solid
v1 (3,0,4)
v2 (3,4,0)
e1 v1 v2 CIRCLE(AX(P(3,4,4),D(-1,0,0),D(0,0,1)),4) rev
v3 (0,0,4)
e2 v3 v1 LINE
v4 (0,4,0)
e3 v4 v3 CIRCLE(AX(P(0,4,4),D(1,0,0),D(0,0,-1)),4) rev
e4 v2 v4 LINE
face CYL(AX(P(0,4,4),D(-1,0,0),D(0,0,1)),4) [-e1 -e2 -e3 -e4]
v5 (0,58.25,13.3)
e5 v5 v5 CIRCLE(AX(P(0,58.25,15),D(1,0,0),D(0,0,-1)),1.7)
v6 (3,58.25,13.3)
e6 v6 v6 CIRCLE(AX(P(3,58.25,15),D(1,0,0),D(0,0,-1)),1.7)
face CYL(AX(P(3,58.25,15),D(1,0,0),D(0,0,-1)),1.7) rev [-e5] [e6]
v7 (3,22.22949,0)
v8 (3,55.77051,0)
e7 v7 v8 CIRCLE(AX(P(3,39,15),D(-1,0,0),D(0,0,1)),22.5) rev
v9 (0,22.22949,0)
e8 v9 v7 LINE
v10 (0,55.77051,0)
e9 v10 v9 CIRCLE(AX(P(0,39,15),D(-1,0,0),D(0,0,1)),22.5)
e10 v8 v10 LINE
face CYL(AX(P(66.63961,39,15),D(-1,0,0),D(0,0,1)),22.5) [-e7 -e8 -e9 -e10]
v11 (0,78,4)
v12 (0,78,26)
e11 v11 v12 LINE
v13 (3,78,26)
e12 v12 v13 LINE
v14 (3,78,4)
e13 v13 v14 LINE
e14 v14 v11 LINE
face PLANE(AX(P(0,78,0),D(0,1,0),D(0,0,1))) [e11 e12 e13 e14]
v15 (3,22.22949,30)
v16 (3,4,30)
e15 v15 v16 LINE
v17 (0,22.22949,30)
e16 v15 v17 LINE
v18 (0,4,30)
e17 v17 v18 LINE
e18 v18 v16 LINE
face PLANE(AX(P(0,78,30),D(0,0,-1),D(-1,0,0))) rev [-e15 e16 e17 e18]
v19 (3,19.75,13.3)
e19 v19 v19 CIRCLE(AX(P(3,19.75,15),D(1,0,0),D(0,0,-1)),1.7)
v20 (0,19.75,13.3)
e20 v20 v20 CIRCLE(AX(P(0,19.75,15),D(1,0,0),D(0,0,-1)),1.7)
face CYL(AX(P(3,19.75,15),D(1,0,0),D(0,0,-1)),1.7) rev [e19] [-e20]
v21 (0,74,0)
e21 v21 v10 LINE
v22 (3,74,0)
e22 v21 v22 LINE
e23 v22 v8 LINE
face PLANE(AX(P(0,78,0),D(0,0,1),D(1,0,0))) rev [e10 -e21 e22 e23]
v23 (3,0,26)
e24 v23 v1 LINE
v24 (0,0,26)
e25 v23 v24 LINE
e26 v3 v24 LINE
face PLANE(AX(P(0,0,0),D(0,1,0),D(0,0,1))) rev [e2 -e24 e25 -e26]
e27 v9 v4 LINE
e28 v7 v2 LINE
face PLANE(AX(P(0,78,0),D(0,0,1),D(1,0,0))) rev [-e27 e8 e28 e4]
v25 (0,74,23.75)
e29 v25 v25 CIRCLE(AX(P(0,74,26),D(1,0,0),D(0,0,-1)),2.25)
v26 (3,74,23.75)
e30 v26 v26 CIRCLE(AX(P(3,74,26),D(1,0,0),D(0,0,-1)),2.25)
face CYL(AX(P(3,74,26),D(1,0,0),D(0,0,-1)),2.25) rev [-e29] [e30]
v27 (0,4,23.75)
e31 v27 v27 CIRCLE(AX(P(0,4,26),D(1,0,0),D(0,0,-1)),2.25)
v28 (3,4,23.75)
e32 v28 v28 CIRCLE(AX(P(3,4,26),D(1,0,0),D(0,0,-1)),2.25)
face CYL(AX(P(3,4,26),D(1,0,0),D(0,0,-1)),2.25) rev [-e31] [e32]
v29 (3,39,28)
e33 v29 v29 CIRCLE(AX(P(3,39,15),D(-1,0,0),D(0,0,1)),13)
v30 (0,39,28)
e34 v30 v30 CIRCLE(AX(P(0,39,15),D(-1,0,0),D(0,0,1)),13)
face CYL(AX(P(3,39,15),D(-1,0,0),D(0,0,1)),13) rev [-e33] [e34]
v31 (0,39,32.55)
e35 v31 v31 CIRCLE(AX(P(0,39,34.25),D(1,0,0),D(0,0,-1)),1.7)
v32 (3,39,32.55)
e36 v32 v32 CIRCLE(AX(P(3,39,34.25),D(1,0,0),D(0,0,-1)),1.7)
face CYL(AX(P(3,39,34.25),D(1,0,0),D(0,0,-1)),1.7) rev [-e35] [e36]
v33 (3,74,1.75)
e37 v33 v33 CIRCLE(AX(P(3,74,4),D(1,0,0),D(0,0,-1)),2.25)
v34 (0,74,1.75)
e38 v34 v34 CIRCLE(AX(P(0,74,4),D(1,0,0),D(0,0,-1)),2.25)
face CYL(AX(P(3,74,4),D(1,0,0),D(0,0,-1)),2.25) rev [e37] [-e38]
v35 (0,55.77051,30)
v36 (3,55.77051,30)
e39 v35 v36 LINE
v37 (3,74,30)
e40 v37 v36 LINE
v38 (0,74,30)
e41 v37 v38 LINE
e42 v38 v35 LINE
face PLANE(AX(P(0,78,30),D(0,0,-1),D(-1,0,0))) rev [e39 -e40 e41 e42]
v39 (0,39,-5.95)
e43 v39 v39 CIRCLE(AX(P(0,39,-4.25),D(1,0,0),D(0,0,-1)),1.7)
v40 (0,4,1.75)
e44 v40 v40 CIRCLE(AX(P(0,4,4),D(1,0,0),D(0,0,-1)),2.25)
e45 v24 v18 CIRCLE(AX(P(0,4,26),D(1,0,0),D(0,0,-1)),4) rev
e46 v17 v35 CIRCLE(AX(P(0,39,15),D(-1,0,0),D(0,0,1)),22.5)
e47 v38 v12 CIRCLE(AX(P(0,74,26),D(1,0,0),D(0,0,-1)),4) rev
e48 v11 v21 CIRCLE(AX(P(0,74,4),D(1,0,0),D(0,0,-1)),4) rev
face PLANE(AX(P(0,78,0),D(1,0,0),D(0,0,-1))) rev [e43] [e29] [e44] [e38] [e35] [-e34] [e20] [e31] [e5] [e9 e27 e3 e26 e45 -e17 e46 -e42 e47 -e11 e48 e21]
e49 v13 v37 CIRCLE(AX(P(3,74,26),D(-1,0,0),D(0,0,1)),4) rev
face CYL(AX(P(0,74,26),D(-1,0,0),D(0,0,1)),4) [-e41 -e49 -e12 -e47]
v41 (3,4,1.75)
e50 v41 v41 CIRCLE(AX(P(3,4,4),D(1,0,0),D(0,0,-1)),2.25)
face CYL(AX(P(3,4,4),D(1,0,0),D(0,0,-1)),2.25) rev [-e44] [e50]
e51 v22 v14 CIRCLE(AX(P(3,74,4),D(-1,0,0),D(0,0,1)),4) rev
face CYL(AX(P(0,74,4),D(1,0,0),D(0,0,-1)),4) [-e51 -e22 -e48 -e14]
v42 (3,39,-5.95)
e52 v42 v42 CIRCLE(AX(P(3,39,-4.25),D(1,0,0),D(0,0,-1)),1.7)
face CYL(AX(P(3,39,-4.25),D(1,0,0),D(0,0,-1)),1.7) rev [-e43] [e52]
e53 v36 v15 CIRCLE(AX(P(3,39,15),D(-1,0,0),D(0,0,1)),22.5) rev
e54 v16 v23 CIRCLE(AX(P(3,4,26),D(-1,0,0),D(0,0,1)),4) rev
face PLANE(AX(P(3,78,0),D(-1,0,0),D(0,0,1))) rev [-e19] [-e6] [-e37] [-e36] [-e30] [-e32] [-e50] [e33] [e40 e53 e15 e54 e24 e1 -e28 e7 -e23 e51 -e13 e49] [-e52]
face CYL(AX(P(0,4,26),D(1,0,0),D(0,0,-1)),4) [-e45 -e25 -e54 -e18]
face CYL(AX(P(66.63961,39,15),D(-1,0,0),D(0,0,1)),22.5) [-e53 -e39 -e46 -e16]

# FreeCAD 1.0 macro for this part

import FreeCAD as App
import Part
import Sketcher

V = App.Vector


def edges_at(feature, points):
    """Names of the edges that pass closest to the given points."""
    edges = feature.Shape.Edges
    near = lambda p: min(range(len(edges)), key=lambda i: edges[i].distToShape(Part.Vertex(*p))[0])
    return sorted({f"Edge{near(p) + 1}" for p in points})

doc = App.newDocument("Part")
params = doc.addObject("Spreadsheet::Sheet", "Params")
for row, (alias, value) in enumerate([
    ("sketch1_width", "3 mm"),
    ("sketch1_height", "30 mm"),
    ("pad1_length", "78 mm"),
    ("sketch2_diameter", "45 mm"),
    ("pad2_length", "3 mm"),
    ("sketch3_diameter", "26 mm"),
    ("sketch4_diameter", "3.4 mm"),
    ("hole_diameter", "3.4 mm"),
    ("sketch5_diameter", "4.5 mm"),
    ("hole2_diameter", "4.5 mm"),
    ("fillet_radius", "4 mm"),
], start=1):
    params.set(f"A{row}", alias)
    params.set(f"B{row}", "=" + value)
    params.setAlias(f"B{row}", alias)

body = doc.addObject("PartDesign::Body", "Body")

sketch1 = doc.addObject("Sketcher::SketchObject", "Sketch")
body.addObject(sketch1)
sketch1.AttachmentSupport = (doc.XZ_Plane, [""])
sketch1.MapMode = "FlatFace"
sketch1.addGeometry([
    Part.LineSegment(V(0, 0, 0), V(0, 30, 0)),
    Part.LineSegment(V(0, 30, 0), V(3, 30, 0)),
    Part.LineSegment(V(3, 30, 0), V(3, 0, 0)),
    Part.LineSegment(V(3, 0, 0), V(0, 0, 0)),
], False)
sketch1.addConstraint([
    Sketcher.Constraint("Coincident", 0, 2, 1, 1),
    Sketcher.Constraint("Coincident", 1, 2, 2, 1),
    Sketcher.Constraint("Coincident", 2, 2, 3, 1),
    Sketcher.Constraint("Coincident", 3, 2, 0, 1),
    Sketcher.Constraint("Vertical", 0),
    Sketcher.Constraint("Horizontal", 1),
    Sketcher.Constraint("Vertical", 2),
    Sketcher.Constraint("Horizontal", 3),
    Sketcher.Constraint("Coincident", 3, 2, -1, 1),
    Sketcher.Constraint("DistanceX", 1, 1, 1, 2, 3.0),
    Sketcher.Constraint("DistanceY", 0, 1, 0, 2, 30.0),
])
sketch1.setExpression("Constraints[9]", "Params.sketch1_width")
sketch1.setExpression("Constraints[10]", "Params.sketch1_height")
pad1 = doc.addObject("PartDesign::Pad", "Pad")
body.addObject(pad1)
pad1.Profile = sketch1
pad1.setExpression("Length", "Params.pad1_length")
pad1.Reversed = True

sketch2 = doc.addObject("Sketcher::SketchObject", "Sketch001")
body.addObject(sketch2)
sketch2.AttachmentSupport = (doc.YZ_Plane, [""])
sketch2.MapMode = "FlatFace"
sketch2.addGeometry(Part.Circle(V(39, 15, 0), V(0, 0, 1), 22), False)
sketch2.addConstraint([
    Sketcher.Constraint("Diameter", 0, 45.0),
    Sketcher.Constraint("DistanceX", -1, 1, 0, 3, 39.0),
    Sketcher.Constraint("DistanceY", -1, 1, 0, 3, 15.0),
])
sketch2.setExpression("Constraints[0]", "Params.sketch2_diameter")
pad2 = doc.addObject("PartDesign::Pad", "Pad001")
body.addObject(pad2)
pad2.Profile = sketch2
pad2.setExpression("Length", "Params.pad2_length")

sketch3 = doc.addObject("Sketcher::SketchObject", "Sketch002")
body.addObject(sketch3)
sketch3.AttachmentSupport = (doc.YZ_Plane, [""])
sketch3.MapMode = "FlatFace"
sketch3.addGeometry(Part.Circle(V(39, 15, 0), V(0, 0, 1), 13), False)
sketch3.addConstraint([
    Sketcher.Constraint("Diameter", 0, 26.0),
    Sketcher.Constraint("DistanceX", -1, 1, 0, 3, 39.0),
    Sketcher.Constraint("DistanceY", -1, 1, 0, 3, 15.0),
])
sketch3.setExpression("Constraints[0]", "Params.sketch3_diameter")
pocket1 = doc.addObject("PartDesign::Pocket", "Pocket")
body.addObject(pocket1)
pocket1.Profile = sketch3
pocket1.Type = "ThroughAll"
pocket1.Reversed = True

sketch4 = doc.addObject("Sketcher::SketchObject", "Sketch003")
body.addObject(sketch4)
sketch4.AttachmentSupport = (doc.YZ_Plane, [""])
sketch4.MapMode = "FlatFace"
sketch4.AttachmentOffset = App.Placement(V(0, 0, 3), App.Rotation())
sketch4.addGeometry([
    Part.Circle(V(58.2, 15, 0), V(0, 0, 1), 1.7),
    Part.Circle(V(39, -4.2, 0), V(0, 0, 1), 1.7),
    Part.Circle(V(19.8, 15, 0), V(0, 0, 1), 1.7),
    Part.Circle(V(39, 34.2, 0), V(0, 0, 1), 1.7),
], False)
sketch4.addConstraint([
    Sketcher.Constraint("Equal", 0, 1),
    Sketcher.Constraint("Equal", 1, 2),
    Sketcher.Constraint("Equal", 2, 3),
    Sketcher.Constraint("Horizontal", 0, 3, 2, 3),
    Sketcher.Constraint("Vertical", 1, 3, 3, 3),
    Sketcher.Constraint("Diameter", 0, 3.4),
    Sketcher.Constraint("DistanceY", -1, 1, 0, 3, 15.0),
    Sketcher.Constraint("DistanceX", -1, 1, 1, 3, 39.0),
    Sketcher.Constraint("DistanceX", 2, 3, 0, 3, 38.5),
    Sketcher.Constraint("DistanceY", 1, 3, 3, 3, 38.5),
    Sketcher.Constraint("DistanceX", -1, 1, 0, 3, 58.25),
    Sketcher.Constraint("DistanceY", 1, 3, -1, 1, 4.25),
])
sketch4.setExpression("Constraints[5]", "Params.sketch4_diameter")
doc.recompute()
hole = doc.addObject("PartDesign::Hole", "Hole")
body.addObject(hole)
hole.Profile = sketch4
hole.ThreadType = "None"
hole.setExpression("Diameter", "Params.hole_diameter")
hole.DepthType = "ThroughAll"

sketch5 = doc.addObject("Sketcher::SketchObject", "Sketch004")
body.addObject(sketch5)
sketch5.AttachmentSupport = (doc.YZ_Plane, [""])
sketch5.MapMode = "FlatFace"
sketch5.AttachmentOffset = App.Placement(V(0, 0, 3), App.Rotation())
sketch5.addGeometry([
    Part.Circle(V(74, 26, 0), V(0, 0, 1), 2.2),
    Part.Circle(V(74, 4, 0), V(0, 0, 1), 2.2),
    Part.Circle(V(4, 4, 0), V(0, 0, 1), 2.2),
    Part.Circle(V(4, 26, 0), V(0, 0, 1), 2.2),
], False)
sketch5.addConstraint([
    Sketcher.Constraint("Equal", 0, 1),
    Sketcher.Constraint("Equal", 1, 2),
    Sketcher.Constraint("Equal", 2, 3),
    Sketcher.Constraint("Horizontal", 1, 3, 2, 3),
    Sketcher.Constraint("Horizontal", 0, 3, 3, 3),
    Sketcher.Constraint("Vertical", 0, 3, 1, 3),
    Sketcher.Constraint("Vertical", 2, 3, 3, 3),
    Sketcher.Constraint("Diameter", 0, 4.5),
    Sketcher.Constraint("DistanceX", -1, 1, 0, 3, 74.0),
    Sketcher.Constraint("DistanceY", -1, 1, 0, 3, 26.0),
    Sketcher.Constraint("DistanceY", -1, 1, 1, 3, 4.0),
    Sketcher.Constraint("DistanceX", -1, 1, 2, 3, 4.0),
])
sketch5.setExpression("Constraints[7]", "Params.sketch5_diameter")
doc.recompute()
hole2 = doc.addObject("PartDesign::Hole", "Hole001")
body.addObject(hole2)
hole2.Profile = sketch5
hole2.ThreadType = "None"
hole2.setExpression("Diameter", "Params.hole2_diameter")
hole2.DepthType = "ThroughAll"
doc.recompute()

fillet = doc.addObject("PartDesign::Fillet", "Fillet")
body.addObject(fillet)
fillet.Base = (hole2, edges_at(hole2, [
    (1.5, 78, 0),
    (1.5, 0, 0),
    (1.5, 0, 30),
    (1.5, 78, 30),
]))
fillet.setExpression("Radius", "Params.fillet_radius")

doc.recompute()
